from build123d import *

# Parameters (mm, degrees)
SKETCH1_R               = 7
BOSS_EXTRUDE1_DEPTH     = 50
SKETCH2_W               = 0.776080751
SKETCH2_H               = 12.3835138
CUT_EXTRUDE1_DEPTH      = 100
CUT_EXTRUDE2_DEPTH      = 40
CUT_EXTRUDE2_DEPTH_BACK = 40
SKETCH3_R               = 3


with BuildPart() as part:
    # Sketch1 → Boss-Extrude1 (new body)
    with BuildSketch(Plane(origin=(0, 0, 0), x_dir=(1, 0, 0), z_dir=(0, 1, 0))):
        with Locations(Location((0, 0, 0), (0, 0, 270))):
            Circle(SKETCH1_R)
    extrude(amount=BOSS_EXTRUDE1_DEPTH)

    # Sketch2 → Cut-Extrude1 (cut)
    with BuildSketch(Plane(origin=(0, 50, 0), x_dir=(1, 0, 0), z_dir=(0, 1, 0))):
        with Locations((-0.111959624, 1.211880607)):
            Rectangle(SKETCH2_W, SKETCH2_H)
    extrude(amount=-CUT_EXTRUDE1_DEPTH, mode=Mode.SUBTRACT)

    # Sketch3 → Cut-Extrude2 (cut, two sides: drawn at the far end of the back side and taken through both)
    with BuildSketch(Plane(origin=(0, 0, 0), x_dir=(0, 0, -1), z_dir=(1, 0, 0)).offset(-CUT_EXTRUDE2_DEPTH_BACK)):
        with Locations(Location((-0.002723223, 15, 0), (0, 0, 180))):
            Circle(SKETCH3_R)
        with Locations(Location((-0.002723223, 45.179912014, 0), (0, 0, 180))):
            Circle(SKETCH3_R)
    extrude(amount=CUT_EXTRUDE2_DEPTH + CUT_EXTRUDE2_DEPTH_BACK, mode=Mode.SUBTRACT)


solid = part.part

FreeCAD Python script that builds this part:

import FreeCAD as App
import Part
import Sketcher
from FreeCAD import Vector
Q = App.Units.Quantity


def add_polygon(sketch, points):
    """Adds a closed chain of lines whose ends are joined by coincident constraints."""
    first, n = sketch.GeometryCount, len(points)
    for a, b in zip(points, points[1:] + points[:1]):
        sketch.addGeometry(Part.LineSegment(App.Vector(*a, 0), App.Vector(*b, 0)), False)
    for i in range(n):
        sketch.addConstraint(Sketcher.Constraint("Coincident", first + i, 2, first + (i + 1) % n, 1))

doc = App.newDocument("Part")
params = doc.addObject("Spreadsheet::Sheet", "Params")
for row, (alias, value) in enumerate([
    ("sketch1_diameter", "14 mm"),
    ("pad1_length", "50 mm"),
    ("pocket1_length", "100 mm"),
    ("sketch3_diameter", "6 mm"),
], start=1):
    params.set(f"A{row}", alias)
    params.set(f"B{row}", "=" + value)
    params.setAlias(f"B{row}", alias)

body = doc.addObject("PartDesign::Body", "Body")

sketch1 = doc.addObject("Sketcher::SketchObject", "Sketch")
body.addObject(sketch1)
sketch1.AttachmentSupport = (doc.XZ_Plane, [""])
sketch1.MapMode = "FlatFace"
sketch1.addGeometry(Part.Circle(Vector(0, 0, 0), Vector(0, 0, 1), 7), False)
sketch1.addConstraint(Sketcher.Constraint("Coincident", 0, 3, -1, 1))
sketch1.addConstraint(Sketcher.Constraint("Diameter", 0, Q("14 mm")))
sketch1.setExpression("Constraints[1]", "Params.sketch1_diameter")
pad1 = doc.addObject("PartDesign::Pad", "Pad")
body.addObject(pad1)
pad1.Profile = sketch1
pad1.setExpression("Length", "Params.pad1_length")
pad1.Reversed = True

sketch2 = doc.addObject("Sketcher::SketchObject", "Sketch001")
body.addObject(sketch2)
sketch2.AttachmentSupport = (doc.XZ_Plane, [""])
sketch2.MapMode = "FlatFace"
sketch2.AttachmentOffset = App.Placement(Vector(0, 0, -50), App.Rotation())
add_polygon(sketch2, [(-0.5, -7.403638), (-0.5, 4.979876), (0.276081, 4.979876), (0.276081, -7.403638)])
sketch2.addConstraint(Sketcher.Constraint("Vertical", 0))
sketch2.addConstraint(Sketcher.Constraint("Horizontal", 1))
sketch2.addConstraint(Sketcher.Constraint("Vertical", 2))
sketch2.addConstraint(Sketcher.Constraint("Horizontal", 3))
sketch2.addConstraint(Sketcher.Constraint("DistanceX", 0, 2, -1, 1, Q("0.5 mm")))
sketch2.addConstraint(Sketcher.Constraint("DistanceX", 1, 1, 1, 2, Q("0.776081 mm")))
sketch2.addConstraint(Sketcher.Constraint("DistanceY", 0, 1, 0, 2, Q("12.383514 mm")))
sketch2.addConstraint(Sketcher.Constraint("DistanceY", -1, 1, 0, 2, Q("4.979876 mm")))
pocket1 = doc.addObject("PartDesign::Pocket", "Pocket")
body.addObject(pocket1)
pocket1.Profile = sketch2
pocket1.setExpression("Length", "Params.pocket1_length")
pocket1.Reversed = True

sketch3 = doc.addObject("Sketcher::SketchObject", "Sketch002")
body.addObject(sketch3)
sketch3.AttachmentSupport = (doc.YZ_Plane, [""])
sketch3.MapMode = "FlatFace"
sketch3.addGeometry(Part.Circle(Vector(15, 0.002723, 0), Vector(0, 0, 1), 3), False)
sketch3.addGeometry(Part.Circle(Vector(45.179912, 0.002723, 0), Vector(0, 0, 1), 3), False)
sketch3.addConstraint(Sketcher.Constraint("Equal", 0, 1))
sketch3.addConstraint(Sketcher.Constraint("Horizontal", 0, 3, 1, 3))
sketch3.addConstraint(Sketcher.Constraint("Diameter", 0, Q("6 mm")))
sketch3.addConstraint(Sketcher.Constraint("DistanceX", -1, 1, 0, 3, Q("15 mm")))
sketch3.addConstraint(Sketcher.Constraint("DistanceY", -1, 1, 0, 3, Q("0.002723 mm")))
sketch3.addConstraint(Sketcher.Constraint("DistanceX", -1, 1, 1, 3, Q("45.179912 mm")))
sketch3.setExpression("Constraints[2]", "Params.sketch3_diameter")
pocket2 = doc.addObject("PartDesign::Pocket", "Pocket001")
body.addObject(pocket2)
pocket2.Profile = sketch3
pocket2.Type = "ThroughAll"
pocket2.Midplane = True

doc.recompute()
